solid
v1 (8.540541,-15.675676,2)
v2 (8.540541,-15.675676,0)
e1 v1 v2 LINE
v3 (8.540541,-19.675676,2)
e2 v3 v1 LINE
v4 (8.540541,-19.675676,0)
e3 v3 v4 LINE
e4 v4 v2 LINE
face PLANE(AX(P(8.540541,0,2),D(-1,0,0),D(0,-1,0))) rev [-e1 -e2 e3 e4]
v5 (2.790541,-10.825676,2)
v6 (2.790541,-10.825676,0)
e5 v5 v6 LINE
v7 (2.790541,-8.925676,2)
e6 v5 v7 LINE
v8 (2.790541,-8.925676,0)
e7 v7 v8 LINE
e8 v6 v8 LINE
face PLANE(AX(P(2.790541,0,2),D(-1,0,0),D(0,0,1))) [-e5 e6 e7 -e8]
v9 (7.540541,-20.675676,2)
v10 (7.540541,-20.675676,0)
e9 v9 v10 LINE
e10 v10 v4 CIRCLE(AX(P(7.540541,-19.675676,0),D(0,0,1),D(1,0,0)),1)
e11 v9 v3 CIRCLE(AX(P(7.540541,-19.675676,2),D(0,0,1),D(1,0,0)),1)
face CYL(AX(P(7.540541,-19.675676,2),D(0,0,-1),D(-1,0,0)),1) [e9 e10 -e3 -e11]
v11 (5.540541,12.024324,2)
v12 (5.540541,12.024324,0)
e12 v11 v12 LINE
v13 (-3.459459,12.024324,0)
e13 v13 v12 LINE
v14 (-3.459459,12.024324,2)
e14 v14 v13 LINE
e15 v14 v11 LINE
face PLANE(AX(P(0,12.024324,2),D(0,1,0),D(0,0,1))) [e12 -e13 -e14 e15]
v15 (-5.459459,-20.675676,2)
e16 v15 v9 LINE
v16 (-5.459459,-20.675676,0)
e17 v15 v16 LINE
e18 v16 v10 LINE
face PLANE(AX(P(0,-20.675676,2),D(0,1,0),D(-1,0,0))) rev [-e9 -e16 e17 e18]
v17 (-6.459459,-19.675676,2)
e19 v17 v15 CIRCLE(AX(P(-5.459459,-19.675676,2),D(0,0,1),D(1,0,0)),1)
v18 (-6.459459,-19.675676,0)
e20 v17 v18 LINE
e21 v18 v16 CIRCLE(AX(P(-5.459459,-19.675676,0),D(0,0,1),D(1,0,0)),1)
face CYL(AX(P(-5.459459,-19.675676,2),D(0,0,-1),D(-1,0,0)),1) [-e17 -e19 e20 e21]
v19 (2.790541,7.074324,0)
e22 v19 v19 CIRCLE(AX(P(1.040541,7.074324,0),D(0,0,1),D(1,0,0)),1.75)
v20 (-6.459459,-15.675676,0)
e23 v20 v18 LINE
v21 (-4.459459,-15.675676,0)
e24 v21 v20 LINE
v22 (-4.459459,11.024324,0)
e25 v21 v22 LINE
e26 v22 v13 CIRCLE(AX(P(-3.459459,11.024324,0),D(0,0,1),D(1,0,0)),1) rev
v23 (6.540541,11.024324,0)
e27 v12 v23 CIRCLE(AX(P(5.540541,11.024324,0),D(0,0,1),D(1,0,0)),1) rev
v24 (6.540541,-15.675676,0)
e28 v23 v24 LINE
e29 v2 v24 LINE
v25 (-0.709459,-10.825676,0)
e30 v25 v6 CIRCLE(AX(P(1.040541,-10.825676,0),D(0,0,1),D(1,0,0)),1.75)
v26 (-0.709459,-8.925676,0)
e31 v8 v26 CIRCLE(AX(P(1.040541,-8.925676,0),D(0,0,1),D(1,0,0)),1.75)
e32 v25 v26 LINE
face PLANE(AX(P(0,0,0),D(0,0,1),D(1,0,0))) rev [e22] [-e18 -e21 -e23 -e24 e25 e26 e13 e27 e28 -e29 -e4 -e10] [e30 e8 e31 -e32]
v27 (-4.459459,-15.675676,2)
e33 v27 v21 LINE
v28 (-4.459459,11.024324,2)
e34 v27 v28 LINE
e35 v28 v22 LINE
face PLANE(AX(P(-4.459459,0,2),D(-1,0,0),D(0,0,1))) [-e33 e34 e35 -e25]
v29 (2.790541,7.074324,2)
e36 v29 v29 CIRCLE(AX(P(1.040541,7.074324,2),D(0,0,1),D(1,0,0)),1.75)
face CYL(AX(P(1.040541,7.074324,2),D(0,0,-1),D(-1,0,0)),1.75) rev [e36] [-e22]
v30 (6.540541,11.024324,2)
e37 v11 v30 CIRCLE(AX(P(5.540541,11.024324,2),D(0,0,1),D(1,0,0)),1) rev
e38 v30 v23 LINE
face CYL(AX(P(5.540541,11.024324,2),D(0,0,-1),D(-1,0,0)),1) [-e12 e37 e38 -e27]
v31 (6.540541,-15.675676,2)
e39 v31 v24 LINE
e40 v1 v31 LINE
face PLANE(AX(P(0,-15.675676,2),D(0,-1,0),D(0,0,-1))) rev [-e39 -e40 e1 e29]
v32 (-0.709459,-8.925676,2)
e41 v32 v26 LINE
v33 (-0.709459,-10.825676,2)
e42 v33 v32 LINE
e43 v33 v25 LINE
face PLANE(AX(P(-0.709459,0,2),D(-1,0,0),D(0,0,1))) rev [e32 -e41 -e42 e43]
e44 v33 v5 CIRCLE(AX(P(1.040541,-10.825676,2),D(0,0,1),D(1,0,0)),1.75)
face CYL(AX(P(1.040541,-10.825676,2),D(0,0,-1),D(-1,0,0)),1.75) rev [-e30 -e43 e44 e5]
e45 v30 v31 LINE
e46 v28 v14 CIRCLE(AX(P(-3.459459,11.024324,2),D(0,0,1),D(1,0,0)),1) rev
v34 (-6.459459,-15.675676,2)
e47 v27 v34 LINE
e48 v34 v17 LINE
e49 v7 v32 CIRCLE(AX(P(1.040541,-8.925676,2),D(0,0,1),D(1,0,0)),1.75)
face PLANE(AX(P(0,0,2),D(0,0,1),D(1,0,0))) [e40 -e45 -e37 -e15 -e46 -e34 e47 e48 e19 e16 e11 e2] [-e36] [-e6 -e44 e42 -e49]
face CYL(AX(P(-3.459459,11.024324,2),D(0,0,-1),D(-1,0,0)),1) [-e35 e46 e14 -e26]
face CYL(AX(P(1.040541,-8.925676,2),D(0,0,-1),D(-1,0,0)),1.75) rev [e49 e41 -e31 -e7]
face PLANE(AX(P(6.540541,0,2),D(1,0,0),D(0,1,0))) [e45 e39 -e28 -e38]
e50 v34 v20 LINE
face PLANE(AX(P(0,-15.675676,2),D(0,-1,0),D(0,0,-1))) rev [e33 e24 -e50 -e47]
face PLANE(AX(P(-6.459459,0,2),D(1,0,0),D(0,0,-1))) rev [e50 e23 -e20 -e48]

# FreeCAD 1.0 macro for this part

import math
import FreeCAD as App
import Part
import Sketcher
from FreeCAD import Vector

doc = App.newDocument("Part")
params = doc.addObject("Spreadsheet::Sheet", "Params")
for row, (alias, value) in enumerate([
    ("sketch1_radius", "1 mm"),
    ("sketch1_diameter", "3.5 mm"),
    ("sketch1_width", "2 mm"),
    ("sketch1_width2", "13 mm"),
    ("sketch1_height", "4 mm"),
    ("pad1_length", "2 mm"),
], start=1):
    params.set(f"A{row}", alias)
    params.set(f"B{row}", "=" + value)
    params.setAlias(f"B{row}", alias)

body = doc.addObject("PartDesign::Body", "Body")

# Sketch on XY plane
sketch1 = body.newObject("Sketcher::SketchObject", "Sketch")
sketch1.AttachmentSupport = (doc.getObject("XY_Plane"), [""])
sketch1.MapMode = "FlatFace"
sketch1.addGeometry(Part.LineSegment(Vector(-4.5, -15.7, 0), Vector(-6.5, -15.7, 0)), False)
sketch1.addGeometry(Part.LineSegment(Vector(-6.5, -15.7, 0), Vector(-6.5, -19.7, 0)), False)
sketch1.addGeometry(Part.ArcOfCircle(Part.Circle(Vector(-5.5, -19.7, 0), Vector(0, 0, 1), 1), math.radians(180), math.radians(270)), False)
sketch1.addGeometry(Part.LineSegment(Vector(-5.5, -20.7, 0), Vector(7.5, -20.7, 0)), False)
sketch1.addGeometry(Part.ArcOfCircle(Part.Circle(Vector(7.5, -19.7, 0), Vector(0, 0, 1), 1), math.radians(-90), math.radians(0)), False)
sketch1.addGeometry(Part.LineSegment(Vector(8.5, -19.7, 0), Vector(8.5, -15.7, 0)), False)
sketch1.addGeometry(Part.LineSegment(Vector(8.5, -15.7, 0), Vector(6.5, -15.7, 0)), False)
sketch1.addGeometry(Part.LineSegment(Vector(6.5, -15.7, 0), Vector(6.5, 11, 0)), False)
sketch1.addGeometry(Part.ArcOfCircle(Part.Circle(Vector(5.5, 11, 0), Vector(0, 0, 1), 1), math.radians(0), math.radians(90)), False)
sketch1.addGeometry(Part.LineSegment(Vector(5.5, 12, 0), Vector(-3.5, 12, 0)), False)
sketch1.addGeometry(Part.ArcOfCircle(Part.Circle(Vector(-3.5, 11, 0), Vector(0, 0, 1), 1), math.radians(90), math.radians(180)), False)
sketch1.addGeometry(Part.LineSegment(Vector(-4.5, 11, 0), Vector(-4.5, -15.7, 0)), False)
sketch1.addGeometry(Part.ArcOfCircle(Part.Circle(Vector(1, -10.8, 0), Vector(0, 0, 1), 1.8), math.radians(180), math.radians(360)), False)
sketch1.addGeometry(Part.LineSegment(Vector(-0.7, -10.8, 0), Vector(-0.7, -8.9, 0)), False)
sketch1.addGeometry(Part.ArcOfCircle(Part.Circle(Vector(1, -8.9, 0), Vector(0, 0, 1), 1.8), math.radians(0), math.radians(180)), False)
sketch1.addGeometry(Part.LineSegment(Vector(2.8, -8.9, 0), Vector(2.8, -10.8, 0)), False)
sketch1.addGeometry(Part.Circle(Vector(1, 7.1, 0), Vector(0, 0, 1), 1.8), False)
sketch1.addConstraint(Sketcher.Constraint("Coincident", 0, 2, 1, 1))
sketch1.addConstraint(Sketcher.Constraint("Tangent", 1, 2, 2, 1))
sketch1.addConstraint(Sketcher.Constraint("Tangent", 2, 2, 3, 1))
sketch1.addConstraint(Sketcher.Constraint("Tangent", 3, 2, 4, 1))
sketch1.addConstraint(Sketcher.Constraint("Tangent", 4, 2, 5, 1))
sketch1.addConstraint(Sketcher.Constraint("Coincident", 5, 2, 6, 1))
sketch1.addConstraint(Sketcher.Constraint("Coincident", 6, 2, 7, 1))
sketch1.addConstraint(Sketcher.Constraint("Tangent", 7, 2, 8, 1))
sketch1.addConstraint(Sketcher.Constraint("Tangent", 8, 2, 9, 1))
sketch1.addConstraint(Sketcher.Constraint("Tangent", 9, 2, 10, 1))
sketch1.addConstraint(Sketcher.Constraint("Tangent", 10, 2, 11, 1))
sketch1.addConstraint(Sketcher.Constraint("Coincident", 11, 2, 0, 1))
sketch1.addConstraint(Sketcher.Constraint("Tangent", 12, 1, 13, 1))
sketch1.addConstraint(Sketcher.Constraint("Tangent", 13, 2, 14, 2))
sketch1.addConstraint(Sketcher.Constraint("Tangent", 14, 1, 15, 1))
sketch1.addConstraint(Sketcher.Constraint("Tangent", 15, 2, 12, 2))
sketch1.addConstraint(Sketcher.Constraint("Horizontal", 0))
sketch1.addConstraint(Sketcher.Constraint("Vertical", 1))
sketch1.addConstraint(Sketcher.Constraint("Horizontal", 3))
sketch1.addConstraint(Sketcher.Constraint("Vertical", 5))
sketch1.addConstraint(Sketcher.Constraint("Horizontal", 6))
sketch1.addConstraint(Sketcher.Constraint("Vertical", 7))
sketch1.addConstraint(Sketcher.Constraint("Horizontal", 9))
sketch1.addConstraint(Sketcher.Constraint("Vertical", 11))
sketch1.addConstraint(Sketcher.Constraint("Vertical", 13))
sketch1.addConstraint(Sketcher.Constraint("Vertical", 15))
sketch1.addConstraint(Sketcher.Constraint("Equal", 2, 4))
sketch1.addConstraint(Sketcher.Constraint("Equal", 4, 8))
sketch1.addConstraint(Sketcher.Constraint("Equal", 8, 10))
sketch1.addConstraint(Sketcher.Constraint("Equal", 14, 16))
sketch1.addConstraint(Sketcher.Constraint("Horizontal", 0, 2, 5, 2))
sketch1.addConstraint(Sketcher.Constraint("Vertical", 14, 3, 16, 3))
sketch1.addConstraint(Sketcher.Constraint("Equal", 0, 6))
sketch1.addConstraint(Sketcher.Constraint("Radius", 2, 1.0))
sketch1.addConstraint(Sketcher.Constraint("Diameter", 16, 3.5))
sketch1.addConstraint(Sketcher.Constraint("DistanceX", 0, 2, 0, 1, 2.0))
sketch1.addConstraint(Sketcher.Constraint("DistanceX", 3, 1, 3, 2, 13.0))
sketch1.addConstraint(Sketcher.Constraint("DistanceY", 1, 2, 1, 1, 4.0))
sketch1.addConstraint(Sketcher.Constraint("DistanceY", 7, 1, 7, 2, 26.7))
sketch1.addConstraint(Sketcher.Constraint("DistanceY", 13, 1, 13, 2, 1.9))
sketch1.addConstraint(Sketcher.Constraint("DistanceY", 14, 3, 16, 3, 16.0))
sketch1.addConstraint(Sketcher.Constraint("DistanceX", 12, 3, 4, 3, 6.5))
sketch1.addConstraint(Sketcher.Constraint("DistanceY", 4, 3, 12, 3, 8.85))
sketch1.addConstraint(Sketcher.Constraint("DistanceX", 2, 3, -1, 1, 5.459459))
sketch1.addConstraint(Sketcher.Constraint("DistanceY", 2, 3, -1, 1, 19.675676))
sketch1.setExpression("Constraints[33]", "Params.sketch1_radius")
sketch1.setExpression("Constraints[34]", "Params.sketch1_diameter")
sketch1.setExpression("Constraints[35]", "Params.sketch1_width")
sketch1.setExpression("Constraints[36]", "Params.sketch1_width2")
sketch1.setExpression("Constraints[37]", "Params.sketch1_height")
pad1 = body.newObject("PartDesign::Pad", "Pad")
pad1.Profile = sketch1
pad1.setExpression("Length", "Params.pad1_length")

doc.recompute()
